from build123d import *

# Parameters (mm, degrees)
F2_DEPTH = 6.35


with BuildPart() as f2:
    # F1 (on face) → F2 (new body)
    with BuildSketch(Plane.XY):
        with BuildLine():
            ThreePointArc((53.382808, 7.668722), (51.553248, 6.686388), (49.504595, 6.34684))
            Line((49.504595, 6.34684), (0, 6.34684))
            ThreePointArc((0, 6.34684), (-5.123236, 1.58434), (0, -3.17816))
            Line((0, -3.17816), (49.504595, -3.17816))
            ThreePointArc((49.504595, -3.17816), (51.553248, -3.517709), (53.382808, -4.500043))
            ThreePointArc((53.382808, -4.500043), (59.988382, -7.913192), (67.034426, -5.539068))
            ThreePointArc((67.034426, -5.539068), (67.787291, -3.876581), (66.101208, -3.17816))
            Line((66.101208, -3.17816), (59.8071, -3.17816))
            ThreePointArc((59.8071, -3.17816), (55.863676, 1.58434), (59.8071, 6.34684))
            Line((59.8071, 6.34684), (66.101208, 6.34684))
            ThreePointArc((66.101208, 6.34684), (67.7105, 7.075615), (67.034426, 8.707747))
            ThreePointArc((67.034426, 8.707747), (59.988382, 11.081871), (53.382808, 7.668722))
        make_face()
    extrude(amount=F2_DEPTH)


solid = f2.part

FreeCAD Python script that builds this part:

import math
import FreeCAD as App
import Part
import Sketcher

V = App.Vector
Q = App.Units.Quantity

doc = App.newDocument("Part")
body = doc.addObject("PartDesign::Body", "Body")

sketch1 = body.newObject("Sketcher::SketchObject", "Sketch")
sketch1.AttachmentSupport = (doc.getObject("XY_Plane"), [""])
sketch1.MapMode = "FlatFace"
sketch1.addGeometry([
    Part.ArcOfCircle(Part.Circle(V(49.5046, 12.696828, 0), V(0, 0, 1), 6.349988), math.radians(-90.000046), math.radians(-52.356783)),
    Part.LineSegment(V(49.504595, 6.34684, 0), V(0, 6.34684, 0)),
    Part.ArcOfCircle(Part.Circle(V(-0.348036, 1.58434, 0), V(0, 0, 1), 4.7752), math.radians(85.820345), math.radians(274.179655)),
    Part.LineSegment(V(0, -3.17816, 0), V(49.504595, -3.17816, 0)),
    Part.ArcOfCircle(Part.Circle(V(49.504596, -9.528157, 0), V(0, 0, 1), 6.349997), math.radians(52.356797), math.radians(90.000005)),
    Part.ArcOfCircle(Part.Circle(V(60.71124, 1.584338, 0), V(0, 0, 1), 9.524999), math.radians(-140.299074), math.radians(-48.405711)),
    Part.ArcOfCircle(Part.Circle(V(66.606213, -4.343437, 0), V(0, 0, 1), 1.27), math.radians(-70.295103), math.radians(113.430823)),
    Part.LineSegment(V(66.101208, -3.17816, 0), V(59.8071, -3.17816, 0)),
    Part.ArcOfCircle(Part.Circle(V(60.71124, 1.58434, 0), V(0, 0, 1), 4.847564), math.radians(100.74943), math.radians(259.25057)),
    Part.LineSegment(V(59.8071, 6.34684, 0), V(66.101208, 6.34684, 0)),
    Part.ArcOfCircle(Part.Circle(V(66.529422, 7.54247, 0), V(0, 0, 1), 1.27), math.radians(-109.704946), math.radians(66.569209)),
    Part.ArcOfCircle(Part.Circle(V(60.71124, 1.584341, 0), V(0, 0, 1), 9.524999), math.radians(48.405711), math.radians(140.299074)),
], False)
sketch1.addConstraint([
    Sketcher.Constraint("Tangent", 0, 1, 1, 1),
    Sketcher.Constraint("Coincident", 1, 2, 2, 1),
    Sketcher.Constraint("Coincident", 2, 2, 3, 1),
    Sketcher.Constraint("Tangent", 3, 2, 4, 2),
    Sketcher.Constraint("Coincident", 4, 1, 5, 1),
    Sketcher.Constraint("Coincident", 5, 2, 6, 1),
    Sketcher.Constraint("Coincident", 6, 2, 7, 1),
    Sketcher.Constraint("Coincident", 7, 2, 8, 2),
    Sketcher.Constraint("Coincident", 8, 1, 9, 1),
    Sketcher.Constraint("Coincident", 9, 2, 10, 1),
    Sketcher.Constraint("Coincident", 10, 2, 11, 1),
    Sketcher.Constraint("Coincident", 11, 2, 0, 2),
    Sketcher.Constraint("Horizontal", 1),
    Sketcher.Constraint("Horizontal", 3),
    Sketcher.Constraint("Horizontal", 7),
    Sketcher.Constraint("Horizontal", 9),
    Sketcher.Constraint("Coincident", 8, 3, 5, 3),
    Sketcher.Constraint("Coincident", 11, 3, 5, 3),
    Sketcher.Constraint("Equal", 6, 10),
    Sketcher.Constraint("Equal", 5, 11),
    Sketcher.Constraint("PointOnObject", 1, 2, -2),
    Sketcher.Constraint("PointOnObject", 2, 2, -2),
    Sketcher.Constraint("Horizontal", 2, 3, 5, 3),
    Sketcher.Constraint("Horizontal", 3, 2, 6, 2),
    Sketcher.Constraint("Horizontal", 1, 2, 8, 1),
    Sketcher.Constraint("Vertical", 4, 3, 0, 1),
    Sketcher.Constraint("Vertical", 6, 2, 9, 2),
    Sketcher.Constraint("Vertical", 5, 2, 10, 2),
    Sketcher.Constraint("Vertical", 4, 1, 11, 2),
    Sketcher.Constraint("Radius", 4, Q("0.2499999 in")),
    Sketcher.Constraint("Radius", 6, Q("0.05 in")),
    Sketcher.Constraint("Radius", 2, Q("0.188 in")),
    Sketcher.Constraint("Radius", 5, Q("0.375 in")),
    Sketcher.Constraint("DistanceX", 1, 2, 1, 1, Q("1.9489998 in")),
    Sketcher.Constraint("DistanceY", 4, 3, 2, 3, Q("0.4374999 in")),
    Sketcher.Constraint("Radius", 8, 4.847564),
    Sketcher.Constraint("DistanceX", 7, 2, 7, 1, 6.294108),
    Sketcher.Constraint("DistanceX", -1, 1, 7, 2, 59.8071),
    Sketcher.Constraint("DistanceY", -1, 1, 2, 3, 1.58434),
    Sketcher.Constraint("DistanceY", -1, 1, 10, 3, 7.54247),
])
pad1 = body.newObject("PartDesign::Pad", "Pad")
pad1.Profile = sketch1
pad1.Length = Q("0.25 in")

doc.recompute()
